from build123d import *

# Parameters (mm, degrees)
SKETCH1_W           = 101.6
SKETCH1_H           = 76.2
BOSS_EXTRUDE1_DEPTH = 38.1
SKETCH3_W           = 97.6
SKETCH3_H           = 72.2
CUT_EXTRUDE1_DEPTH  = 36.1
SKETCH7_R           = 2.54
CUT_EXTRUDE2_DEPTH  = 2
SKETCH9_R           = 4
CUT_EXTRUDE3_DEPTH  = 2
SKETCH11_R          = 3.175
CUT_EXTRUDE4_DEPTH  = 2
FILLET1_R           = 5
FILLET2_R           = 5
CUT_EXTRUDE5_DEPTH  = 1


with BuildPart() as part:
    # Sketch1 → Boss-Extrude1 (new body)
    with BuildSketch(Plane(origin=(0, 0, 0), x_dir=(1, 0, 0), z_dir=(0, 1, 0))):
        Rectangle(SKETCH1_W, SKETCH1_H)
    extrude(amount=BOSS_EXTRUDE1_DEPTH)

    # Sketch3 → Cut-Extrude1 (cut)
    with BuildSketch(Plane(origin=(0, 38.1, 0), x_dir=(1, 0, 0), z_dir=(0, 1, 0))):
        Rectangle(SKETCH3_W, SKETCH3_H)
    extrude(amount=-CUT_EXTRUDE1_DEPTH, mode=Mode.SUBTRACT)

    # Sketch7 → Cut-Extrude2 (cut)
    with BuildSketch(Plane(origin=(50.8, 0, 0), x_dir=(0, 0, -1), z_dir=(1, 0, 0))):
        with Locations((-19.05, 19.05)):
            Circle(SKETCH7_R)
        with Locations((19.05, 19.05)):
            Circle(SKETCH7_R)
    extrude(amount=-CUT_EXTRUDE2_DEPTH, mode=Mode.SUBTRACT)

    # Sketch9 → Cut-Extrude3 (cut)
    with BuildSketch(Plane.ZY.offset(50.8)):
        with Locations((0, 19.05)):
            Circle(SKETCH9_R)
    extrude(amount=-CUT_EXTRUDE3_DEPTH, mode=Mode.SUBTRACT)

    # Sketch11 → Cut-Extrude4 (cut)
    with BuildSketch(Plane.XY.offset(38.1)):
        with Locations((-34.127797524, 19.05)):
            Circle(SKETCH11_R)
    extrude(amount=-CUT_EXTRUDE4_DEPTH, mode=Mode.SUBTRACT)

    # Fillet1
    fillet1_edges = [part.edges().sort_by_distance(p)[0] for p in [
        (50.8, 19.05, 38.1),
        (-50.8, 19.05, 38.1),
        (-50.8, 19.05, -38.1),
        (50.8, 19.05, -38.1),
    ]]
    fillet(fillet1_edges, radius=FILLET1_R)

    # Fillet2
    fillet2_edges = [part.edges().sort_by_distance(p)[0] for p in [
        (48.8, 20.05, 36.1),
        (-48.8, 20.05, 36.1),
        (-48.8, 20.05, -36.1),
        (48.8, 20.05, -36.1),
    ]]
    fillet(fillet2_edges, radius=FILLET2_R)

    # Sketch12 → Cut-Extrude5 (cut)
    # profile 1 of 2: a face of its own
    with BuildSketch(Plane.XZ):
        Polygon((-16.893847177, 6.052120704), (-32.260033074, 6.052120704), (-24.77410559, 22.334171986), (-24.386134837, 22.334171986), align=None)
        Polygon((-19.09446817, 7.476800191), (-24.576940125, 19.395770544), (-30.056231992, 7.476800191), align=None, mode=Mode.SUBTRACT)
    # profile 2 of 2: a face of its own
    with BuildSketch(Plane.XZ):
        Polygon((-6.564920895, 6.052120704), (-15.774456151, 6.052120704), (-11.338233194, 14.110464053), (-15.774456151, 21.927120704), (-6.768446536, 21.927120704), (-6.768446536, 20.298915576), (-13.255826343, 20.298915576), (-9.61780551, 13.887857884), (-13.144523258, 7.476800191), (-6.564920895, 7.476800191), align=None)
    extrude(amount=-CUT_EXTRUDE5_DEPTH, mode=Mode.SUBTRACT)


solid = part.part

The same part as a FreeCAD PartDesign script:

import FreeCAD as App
import Part
import Sketcher
from FreeCAD import Vector


def edges_at(feature, points):
    """Names of the edges that pass closest to the given points."""
    edges = feature.Shape.Edges
    near = lambda p: min(range(len(edges)), key=lambda i: edges[i].distToShape(Part.Vertex(*p))[0])
    return sorted({f"Edge{near(p) + 1}" for p in points})


def add_polygon(sketch, points):
    """Adds a closed chain of lines whose ends are joined by coincident constraints."""
    first, n = sketch.GeometryCount, len(points)
    for a, b in zip(points, points[1:] + points[:1]):
        sketch.addGeometry(Part.LineSegment(App.Vector(*a, 0), App.Vector(*b, 0)), False)
    for i in range(n):
        sketch.addConstraint(Sketcher.Constraint("Coincident", first + i, 2, first + (i + 1) % n, 1))

doc = App.newDocument("Part")
body = doc.addObject("PartDesign::Body", "Body")

# Sketch on XZ plane
sketch1 = body.newObject("Sketcher::SketchObject", "Sketch")
sketch1.AttachmentSupport = (doc.getObject("XZ_Plane"), [""])
sketch1.MapMode = "FlatFace"
add_polygon(sketch1, [(-51, -38), (-51, 38), (51, 38), (51, -38)])  # lines 0-3
sketch1.addConstraint(Sketcher.Constraint("Vertical", 0))
sketch1.addConstraint(Sketcher.Constraint("Horizontal", 1))
sketch1.addConstraint(Sketcher.Constraint("Vertical", 2))
sketch1.addConstraint(Sketcher.Constraint("Horizontal", 3))
sketch1.addConstraint(Sketcher.Constraint("Symmetric", 0, 2, 2, 2, -1, 1))
sketch1.addConstraint(Sketcher.Constraint("DistanceX", 1, 1, 1, 2, 101.6))
sketch1.addConstraint(Sketcher.Constraint("DistanceY", 0, 1, 0, 2, 76.2))
pad1 = body.newObject("PartDesign::Pad", "Pad")
pad1.Profile = sketch1
pad1.Length = 38.1
pad1.Reversed = True

# Sketch on XZ plane
sketch2 = body.newObject("Sketcher::SketchObject", "Sketch001")
sketch2.AttachmentSupport = (doc.getObject("XZ_Plane"), [""])
sketch2.MapMode = "FlatFace"
sketch2.AttachmentOffset = App.Placement(Vector(0, 0, -38.1), App.Rotation())
add_polygon(sketch2, [(-49, -36), (-49, 36), (49, 36), (49, -36)])  # lines 0-3
sketch2.addConstraint(Sketcher.Constraint("Vertical", 0))
sketch2.addConstraint(Sketcher.Constraint("Horizontal", 1))
sketch2.addConstraint(Sketcher.Constraint("Vertical", 2))
sketch2.addConstraint(Sketcher.Constraint("Horizontal", 3))
sketch2.addConstraint(Sketcher.Constraint("Symmetric", 0, 2, 2, 2, -1, 1))
sketch2.addConstraint(Sketcher.Constraint("DistanceX", 1, 1, 1, 2, 97.6))
sketch2.addConstraint(Sketcher.Constraint("DistanceY", 0, 1, 0, 2, 72.2))
pocket1 = body.newObject("PartDesign::Pocket", "Pocket")
pocket1.Profile = sketch2
pocket1.Length = 36.1
pocket1.Reversed = True

# Sketch on YZ plane
sketch3 = body.newObject("Sketcher::SketchObject", "Sketch002")
sketch3.AttachmentSupport = (doc.getObject("YZ_Plane"), [""])
sketch3.MapMode = "FlatFace"
sketch3.AttachmentOffset = App.Placement(Vector(0, 0, 50.8), App.Rotation())
sketch3.addGeometry(Part.Circle(Vector(19.1, 19.1, 0), Vector(0, 0, 1), 2.5), False)
sketch3.addGeometry(Part.Circle(Vector(19.1, -19.1, 0), Vector(0, 0, 1), 2.5), False)
sketch3.addConstraint(Sketcher.Constraint("Equal", 0, 1))
sketch3.addConstraint(Sketcher.Constraint("Symmetric", 0, 3, 1, 3, -1))
sketch3.addConstraint(Sketcher.Constraint("Diameter", 0, 5.08))
sketch3.addConstraint(Sketcher.Constraint("DistanceY", 1, 3, 0, 3, 38.1))
sketch3.addConstraint(Sketcher.Constraint("DistanceX", -1, 1, 0, 3, 19.05))
pocket2 = body.newObject("PartDesign::Pocket", "Pocket001")
pocket2.Profile = sketch3
pocket2.Length = 2

# Sketch on YZ plane
sketch4 = body.newObject("Sketcher::SketchObject", "Sketch003")
sketch4.AttachmentSupport = (doc.getObject("YZ_Plane"), [""])
sketch4.MapMode = "FlatFace"
sketch4.AttachmentOffset = App.Placement(Vector(0, 0, -50.8), App.Rotation())
sketch4.addGeometry(Part.Circle(Vector(19.1, 0, 0), Vector(0, 0, 1), 4), False)
sketch4.addConstraint(Sketcher.Constraint("PointOnObject", 0, 3, -1))
sketch4.addConstraint(Sketcher.Constraint("Diameter", 0, 8.0))
sketch4.addConstraint(Sketcher.Constraint("DistanceX", -1, 1, 0, 3, 19.05))
pocket3 = body.newObject("PartDesign::Pocket", "Pocket002")
pocket3.Profile = sketch4
pocket3.Length = 2
pocket3.Reversed = True

# Sketch on XY plane
sketch5 = body.newObject("Sketcher::SketchObject", "Sketch004")
sketch5.AttachmentSupport = (doc.getObject("XY_Plane"), [""])
sketch5.MapMode = "FlatFace"
sketch5.AttachmentOffset = App.Placement(Vector(0, 0, 38.1), App.Rotation())
sketch5.addGeometry(Part.Circle(Vector(-34.1, 19.1, 0), Vector(0, 0, 1), 3.2), False)
sketch5.addConstraint(Sketcher.Constraint("Diameter", 0, 6.35))
sketch5.addConstraint(Sketcher.Constraint("DistanceY", -1, 1, 0, 3, 19.05))
sketch5.addConstraint(Sketcher.Constraint("DistanceX", 0, 3, -1, 1, 34.127798))
pocket4 = body.newObject("PartDesign::Pocket", "Pocket003")
pocket4.Profile = sketch5
pocket4.Length = 2
doc.recompute()

fillet = body.newObject("PartDesign::Fillet", "Fillet")
fillet.Base = (pocket4, edges_at(pocket4, [
    (50.8, 19.05, 38.1),
    (-50.8, 19.05, 38.1),
    (-50.8, 19.05, -38.1),
    (50.8, 19.05, -38.1),
]))
fillet.Radius = 5
doc.recompute()

fillet2 = body.newObject("PartDesign::Fillet", "Fillet001")
fillet2.Base = (fillet, edges_at(fillet, [
    (48.8, 20.05, 36.1),
    (-48.8, 20.05, 36.1),
    (-48.8, 20.05, -36.1),
    (48.8, 20.05, -36.1),
]))
fillet2.Radius = 5

# Sketch on XZ plane
sketch6 = body.newObject("Sketcher::SketchObject", "Sketch005")
sketch6.AttachmentSupport = (doc.getObject("XZ_Plane"), [""])
sketch6.MapMode = "FlatFace"
add_polygon(sketch6, [(-32.26, 6.05), (-16.89, 6.05), (-24.39, 22.33), (-24.77, 22.33)])  # lines 0-3
add_polygon(sketch6, [(-19.09, 7.48), (-30.06, 7.48), (-24.58, 19.4)])  # lines 4-6
add_polygon(sketch6, [(-15.77, 6.05), (-6.56, 6.05), (-6.56, 7.48), (-13.14, 7.48), (-9.62, 13.89), (-13.26, 20.3), (-6.77, 20.3), (-6.77, 21.93), (-15.77, 21.93), (-11.34, 14.11)])  # lines 7-16
sketch6.addConstraint(Sketcher.Constraint("Horizontal", 0))
sketch6.addConstraint(Sketcher.Constraint("Horizontal", 2))
sketch6.addConstraint(Sketcher.Constraint("Horizontal", 4))
sketch6.addConstraint(Sketcher.Constraint("Horizontal", 7))
sketch6.addConstraint(Sketcher.Constraint("Vertical", 8))
sketch6.addConstraint(Sketcher.Constraint("Horizontal", 9))
sketch6.addConstraint(Sketcher.Constraint("Horizontal", 12))
sketch6.addConstraint(Sketcher.Constraint("Vertical", 13))
sketch6.addConstraint(Sketcher.Constraint("Horizontal", 14))
sketch6.addConstraint(Sketcher.Constraint("Horizontal", 3, 2, 7, 2))
sketch6.addConstraint(Sketcher.Constraint("Horizontal", 6, 2, 8, 2))
sketch6.addConstraint(Sketcher.Constraint("Vertical", 14, 2, 16, 2))
sketch6.addConstraint(Sketcher.Constraint("Distance", 3, 17.9205))
sketch6.addConstraint(Sketcher.Constraint("DistanceX", 2, 2, 2, 1, 0.387971))
sketch6.addConstraint(Sketcher.Constraint("DistanceX", 12, 1, 12, 2, 6.48738))
sketch6.addConstraint(Sketcher.Constraint("DistanceX", 14, 2, 14, 1, 9.00601))
sketch6.addConstraint(Sketcher.Constraint("DistanceY", 8, 1, 8, 2, 1.424679))
sketch6.addConstraint(Sketcher.Constraint("DistanceY", -1, 1, 4, 2, 7.4768))
sketch6.addConstraint(Sketcher.Constraint("DistanceX", 3, 2, 1, 2, 7.873898))
sketch6.addConstraint(Sketcher.Constraint("DistanceX", 3, 2, 4, 2, 2.203801))
sketch6.addConstraint(Sketcher.Constraint("DistanceY", 5, 2, 1, 2, 2.938401))
sketch6.addConstraint(Sketcher.Constraint("Distance", 15, 8.98778))
sketch6.addConstraint(Sketcher.Constraint("Distance", 16, 9.198748))
sketch6.addConstraint(Sketcher.Constraint("DistanceX", 0, 1, 0, 2, 15.366186))
sketch6.addConstraint(Sketcher.Constraint("DistanceX", 4, 2, 4, 1, 10.961764))
sketch6.addConstraint(Sketcher.Constraint("DistanceX", 7, 1, 7, 2, 9.209535))
sketch6.addConstraint(Sketcher.Constraint("DistanceX", 9, 2, 9, 1, 6.579602))
sketch6.addConstraint(Sketcher.Constraint("DistanceY", 13, 1, 13, 2, 1.628205))
sketch6.addConstraint(Sketcher.Constraint("DistanceX", 4, 2, -1, 1, 30.056232))
sketch6.addConstraint(Sketcher.Constraint("DistanceX", 5, 2, -1, 1, 24.57694))
sketch6.addConstraint(Sketcher.Constraint("DistanceX", 7, 2, -1, 1, 6.564921))
sketch6.addConstraint(Sketcher.Constraint("DistanceY", -1, 1, 13, 2, 21.927121))
sketch6.addConstraint(Sketcher.Constraint("DistanceX", 0, 2, 10, 2, 7.276042))
sketch6.addConstraint(Sketcher.Constraint("Distance", 10, 7.317062))
pocket5 = body.newObject("PartDesign::Pocket", "Pocket004")
pocket5.Profile = sketch6
pocket5.Length = 1

doc.recompute()
